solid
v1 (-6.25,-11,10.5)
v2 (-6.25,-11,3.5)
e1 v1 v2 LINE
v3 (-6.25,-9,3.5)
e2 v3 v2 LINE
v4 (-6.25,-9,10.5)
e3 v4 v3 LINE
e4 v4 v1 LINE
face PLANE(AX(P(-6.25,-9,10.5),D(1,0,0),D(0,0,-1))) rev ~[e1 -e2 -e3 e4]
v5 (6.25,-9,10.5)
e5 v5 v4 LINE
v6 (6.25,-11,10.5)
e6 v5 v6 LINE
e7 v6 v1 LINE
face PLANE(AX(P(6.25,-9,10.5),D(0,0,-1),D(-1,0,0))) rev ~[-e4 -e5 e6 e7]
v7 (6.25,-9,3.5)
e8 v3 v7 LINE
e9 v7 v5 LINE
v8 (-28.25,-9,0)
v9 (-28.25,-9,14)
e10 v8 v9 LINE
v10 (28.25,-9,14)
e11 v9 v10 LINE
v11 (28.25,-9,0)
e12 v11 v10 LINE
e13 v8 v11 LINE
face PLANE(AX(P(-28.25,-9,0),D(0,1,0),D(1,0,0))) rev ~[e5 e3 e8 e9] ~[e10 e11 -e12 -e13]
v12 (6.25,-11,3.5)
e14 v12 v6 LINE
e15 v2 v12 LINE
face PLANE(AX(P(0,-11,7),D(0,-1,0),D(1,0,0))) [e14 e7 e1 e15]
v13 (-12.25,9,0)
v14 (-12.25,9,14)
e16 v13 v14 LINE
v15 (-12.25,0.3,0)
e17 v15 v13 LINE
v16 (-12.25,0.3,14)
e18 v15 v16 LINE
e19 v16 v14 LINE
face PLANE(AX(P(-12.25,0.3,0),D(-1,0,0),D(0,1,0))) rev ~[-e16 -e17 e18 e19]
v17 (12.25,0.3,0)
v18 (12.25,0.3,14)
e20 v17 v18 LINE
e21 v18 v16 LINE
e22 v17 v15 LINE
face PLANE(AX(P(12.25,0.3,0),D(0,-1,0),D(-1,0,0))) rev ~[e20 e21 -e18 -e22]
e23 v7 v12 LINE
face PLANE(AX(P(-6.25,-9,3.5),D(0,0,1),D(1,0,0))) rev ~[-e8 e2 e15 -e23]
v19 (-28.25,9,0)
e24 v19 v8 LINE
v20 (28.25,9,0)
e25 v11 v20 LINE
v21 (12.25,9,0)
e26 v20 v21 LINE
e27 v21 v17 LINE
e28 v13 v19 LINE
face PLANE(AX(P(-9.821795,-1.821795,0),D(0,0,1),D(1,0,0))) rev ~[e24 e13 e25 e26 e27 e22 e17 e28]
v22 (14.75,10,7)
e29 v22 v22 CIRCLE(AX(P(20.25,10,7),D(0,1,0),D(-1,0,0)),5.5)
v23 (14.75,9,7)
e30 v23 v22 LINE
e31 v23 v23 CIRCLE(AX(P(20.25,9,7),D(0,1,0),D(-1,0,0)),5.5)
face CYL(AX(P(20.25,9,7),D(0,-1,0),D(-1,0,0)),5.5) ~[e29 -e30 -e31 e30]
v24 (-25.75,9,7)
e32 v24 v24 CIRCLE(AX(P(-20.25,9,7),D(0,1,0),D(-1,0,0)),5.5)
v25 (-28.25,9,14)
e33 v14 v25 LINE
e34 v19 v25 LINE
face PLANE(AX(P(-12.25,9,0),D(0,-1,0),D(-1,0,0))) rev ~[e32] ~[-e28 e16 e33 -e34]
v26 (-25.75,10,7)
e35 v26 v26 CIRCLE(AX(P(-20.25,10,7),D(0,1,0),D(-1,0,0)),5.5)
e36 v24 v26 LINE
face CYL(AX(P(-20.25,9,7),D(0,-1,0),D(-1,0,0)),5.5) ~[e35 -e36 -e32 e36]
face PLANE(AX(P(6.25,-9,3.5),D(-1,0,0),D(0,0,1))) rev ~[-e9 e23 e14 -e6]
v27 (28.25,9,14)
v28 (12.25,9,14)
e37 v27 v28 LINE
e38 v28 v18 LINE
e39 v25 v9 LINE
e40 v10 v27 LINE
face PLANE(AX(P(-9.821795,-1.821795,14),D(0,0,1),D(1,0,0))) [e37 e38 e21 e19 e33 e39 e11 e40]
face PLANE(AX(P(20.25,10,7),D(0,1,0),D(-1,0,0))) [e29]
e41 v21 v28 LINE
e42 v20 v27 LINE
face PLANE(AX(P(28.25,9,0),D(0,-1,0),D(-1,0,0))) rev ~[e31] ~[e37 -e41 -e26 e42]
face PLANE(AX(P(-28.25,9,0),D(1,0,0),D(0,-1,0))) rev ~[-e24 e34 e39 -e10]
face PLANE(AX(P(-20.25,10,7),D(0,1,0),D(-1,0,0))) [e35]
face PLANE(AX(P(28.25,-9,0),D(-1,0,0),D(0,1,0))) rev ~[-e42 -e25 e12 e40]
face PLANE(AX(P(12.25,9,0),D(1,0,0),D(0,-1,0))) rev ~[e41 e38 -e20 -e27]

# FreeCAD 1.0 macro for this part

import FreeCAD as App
import Part
import Sketcher
Q = App.Units.Quantity

doc = App.newDocument("Part")
body = doc.addObject("PartDesign::Body", "Body")

# Sketch on XY plane
sketch1 = body.newObject("Sketcher::SketchObject", "Sketch")
sketch1.AttachmentSupport = (doc.getObject("XY_Plane"), [""])
sketch1.MapMode = "FlatFace"
sketch1.addGeometry([
    Part.LineSegment(App.Vector(-12, 0, 0), App.Vector(-12, 9, 0)),  # 0
    Part.LineSegment(App.Vector(-12, 9, 0), App.Vector(-28, 9, 0)),  # 1
    Part.LineSegment(App.Vector(-28, 9, 0), App.Vector(-28, -9, 0)),  # 2
    Part.LineSegment(App.Vector(-28, -9, 0), App.Vector(28, -9, 0)),  # 3
    Part.LineSegment(App.Vector(28, -9, 0), App.Vector(28, 9, 0)),  # 4
    Part.LineSegment(App.Vector(28, 9, 0), App.Vector(12, 9, 0)),  # 5
    Part.LineSegment(App.Vector(12, 9, 0), App.Vector(12, 0, 0)),  # 6
    Part.LineSegment(App.Vector(12, 0, 0), App.Vector(-12, 0, 0)),  # 7
], False)
sketch1.addConstraint([
    Sketcher.Constraint("Coincident", 0, 2, 1, 1),
    Sketcher.Constraint("Coincident", 1, 2, 2, 1),
    Sketcher.Constraint("Coincident", 2, 2, 3, 1),
    Sketcher.Constraint("Coincident", 3, 2, 4, 1),
    Sketcher.Constraint("Coincident", 4, 2, 5, 1),
    Sketcher.Constraint("Coincident", 5, 2, 6, 1),
    Sketcher.Constraint("Coincident", 6, 2, 7, 1),
    Sketcher.Constraint("Coincident", 7, 2, 0, 1),
    Sketcher.Constraint("Vertical", 0),
    Sketcher.Constraint("Horizontal", 1),
    Sketcher.Constraint("Vertical", 2),
    Sketcher.Constraint("Horizontal", 3),
    Sketcher.Constraint("Vertical", 4),
    Sketcher.Constraint("Horizontal", 5),
    Sketcher.Constraint("Vertical", 6),
    Sketcher.Constraint("Horizontal", 7),
    Sketcher.Constraint("Symmetric", 1, 2, 3, 2, -1, 1),
    Sketcher.Constraint("Symmetric", 0, 2, 5, 2, -2),
    Sketcher.Constraint("DistanceX", 1, 2, 1, 1, Q("16 mm")),
    Sketcher.Constraint("DistanceY", 2, 2, 2, 1, Q("18 mm")),
    Sketcher.Constraint("DistanceX", 3, 1, 3, 2, Q("56.5 mm")),
    Sketcher.Constraint("DistanceY", 0, 1, 0, 2, Q("8.7 mm")),
])
pad1 = body.newObject("PartDesign::Pad", "Pad")
pad1.Profile = sketch1
pad1.Length = 14

# Sketch on XZ plane
sketch2 = body.newObject("Sketcher::SketchObject", "Sketch001")
sketch2.AttachmentSupport = (doc.getObject("XZ_Plane"), [""])
sketch2.MapMode = "FlatFace"
sketch2.AttachmentOffset = App.Placement(App.Vector(0, 0, -9), App.Rotation())
sketch2.addGeometry([
    Part.Circle(App.Vector(20, 7, 0), App.Vector(0, 0, 1), 6),
    Part.Circle(App.Vector(-20, 7, 0), App.Vector(0, 0, 1), 6),
], False)
sketch2.addConstraint([
    Sketcher.Constraint("Equal", 0, 1),
    Sketcher.Constraint("Symmetric", 0, 3, 1, 3, -2),
    Sketcher.Constraint("Diameter", 0, Q("11 mm")),
    Sketcher.Constraint("DistanceY", -1, 1, 0, 3, Q("7 mm")),
    Sketcher.Constraint("DistanceX", 1, 3, 0, 3, Q("40.5 mm")),
])
pad2 = body.newObject("PartDesign::Pad", "Pad001")
pad2.Profile = sketch2
pad2.Length = 1
pad2.Reversed = True

# Sketch on XZ plane
sketch3 = body.newObject("Sketcher::SketchObject", "Sketch002")
sketch3.AttachmentSupport = (doc.getObject("XZ_Plane"), [""])
sketch3.MapMode = "FlatFace"
sketch3.AttachmentOffset = App.Placement(App.Vector(0, 0, 9), App.Rotation())
sketch3.addGeometry([
    Part.LineSegment(App.Vector(-6, 4, 0), App.Vector(6, 4, 0)),
    Part.LineSegment(App.Vector(6, 4, 0), App.Vector(6, 10, 0)),
    Part.LineSegment(App.Vector(6, 10, 0), App.Vector(-6, 10, 0)),
    Part.LineSegment(App.Vector(-6, 10, 0), App.Vector(-6, 4, 0)),
], False)
sketch3.addConstraint([
    Sketcher.Constraint("Coincident", 0, 2, 1, 1),
    Sketcher.Constraint("Coincident", 1, 2, 2, 1),
    Sketcher.Constraint("Coincident", 2, 2, 3, 1),
    Sketcher.Constraint("Coincident", 3, 2, 0, 1),
    Sketcher.Constraint("Horizontal", 0),
    Sketcher.Constraint("Vertical", 1),
    Sketcher.Constraint("Horizontal", 2),
    Sketcher.Constraint("Vertical", 3),
    Sketcher.Constraint("DistanceY", 1, 1, 1, 2, Q("7 mm")),
    Sketcher.Constraint("DistanceX", 0, 1, 0, 2, Q("12.5 mm")),
    Sketcher.Constraint("DistanceY", -1, 1, 0, 2, Q("3.5 mm")),
    Sketcher.Constraint("DistanceX", -1, 1, 0, 2, Q("6.25 mm")),
])
pad3 = body.newObject("PartDesign::Pad", "Pad002")
pad3.Profile = sketch3
pad3.Length = 2

doc.recompute()
